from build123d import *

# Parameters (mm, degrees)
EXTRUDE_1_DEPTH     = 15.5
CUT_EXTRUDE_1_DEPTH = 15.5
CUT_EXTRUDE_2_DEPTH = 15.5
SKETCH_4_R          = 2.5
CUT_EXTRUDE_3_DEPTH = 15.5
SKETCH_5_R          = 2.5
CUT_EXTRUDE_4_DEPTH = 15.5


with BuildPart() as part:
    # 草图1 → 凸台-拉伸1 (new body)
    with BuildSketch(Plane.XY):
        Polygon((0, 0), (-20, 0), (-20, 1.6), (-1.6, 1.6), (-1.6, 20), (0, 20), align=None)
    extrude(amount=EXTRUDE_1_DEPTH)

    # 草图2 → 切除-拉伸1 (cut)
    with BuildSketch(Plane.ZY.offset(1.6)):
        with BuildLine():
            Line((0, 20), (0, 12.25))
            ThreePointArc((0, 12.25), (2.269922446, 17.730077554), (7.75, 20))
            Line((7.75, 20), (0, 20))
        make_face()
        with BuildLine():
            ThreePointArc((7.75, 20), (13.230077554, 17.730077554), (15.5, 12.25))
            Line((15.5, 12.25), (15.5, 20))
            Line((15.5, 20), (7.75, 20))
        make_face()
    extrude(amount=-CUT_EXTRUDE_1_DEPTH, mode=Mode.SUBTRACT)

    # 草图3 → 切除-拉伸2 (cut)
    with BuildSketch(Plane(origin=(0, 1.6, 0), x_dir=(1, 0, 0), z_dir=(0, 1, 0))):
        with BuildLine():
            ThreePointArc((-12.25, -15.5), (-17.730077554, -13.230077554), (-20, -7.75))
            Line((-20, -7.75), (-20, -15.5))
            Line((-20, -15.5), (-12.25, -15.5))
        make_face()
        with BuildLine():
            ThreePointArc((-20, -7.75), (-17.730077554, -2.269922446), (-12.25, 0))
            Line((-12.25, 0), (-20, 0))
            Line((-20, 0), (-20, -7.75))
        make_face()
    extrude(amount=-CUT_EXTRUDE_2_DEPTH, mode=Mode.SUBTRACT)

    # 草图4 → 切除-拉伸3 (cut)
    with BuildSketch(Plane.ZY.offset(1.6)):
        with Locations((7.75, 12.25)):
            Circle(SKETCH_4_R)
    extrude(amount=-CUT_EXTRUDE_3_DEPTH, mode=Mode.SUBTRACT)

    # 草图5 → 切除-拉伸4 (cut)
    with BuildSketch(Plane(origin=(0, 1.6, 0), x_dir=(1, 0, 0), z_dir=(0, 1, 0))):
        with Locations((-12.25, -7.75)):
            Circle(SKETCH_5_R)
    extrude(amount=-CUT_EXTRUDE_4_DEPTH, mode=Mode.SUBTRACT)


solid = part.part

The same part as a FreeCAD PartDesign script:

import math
import FreeCAD as App
import Part
import Sketcher
from FreeCAD import Vector


def add_polygon(sketch, points):
    """Adds a closed chain of lines whose ends are joined by coincident constraints."""
    first, n = sketch.GeometryCount, len(points)
    for a, b in zip(points, points[1:] + points[:1]):
        sketch.addGeometry(Part.LineSegment(App.Vector(*a, 0), App.Vector(*b, 0)), False)
    for i in range(n):
        sketch.addConstraint(Sketcher.Constraint("Coincident", first + i, 2, first + (i + 1) % n, 1))

doc = App.newDocument("Part")
body = doc.addObject("PartDesign::Body", "Body")

# Sketch on XY plane
sketch1 = body.newObject("Sketcher::SketchObject", "Sketch")
sketch1.AttachmentSupport = (doc.getObject("XY_Plane"), [""])
sketch1.MapMode = "FlatFace"
add_polygon(sketch1, [(-20, 0), (0, 0), (0, 20), (-1.6, 20), (-1.6, 1.6), (-20, 1.6)])  # lines 0-5
sketch1.addConstraint(Sketcher.Constraint("Horizontal", 0))
sketch1.addConstraint(Sketcher.Constraint("Vertical", 1))
sketch1.addConstraint(Sketcher.Constraint("Horizontal", 2))
sketch1.addConstraint(Sketcher.Constraint("Vertical", 3))
sketch1.addConstraint(Sketcher.Constraint("Horizontal", 4))
sketch1.addConstraint(Sketcher.Constraint("Vertical", 5))
sketch1.addConstraint(Sketcher.Constraint("Coincident", 0, 2, -1, 1))
sketch1.addConstraint(Sketcher.Constraint("Equal", 0, 1))
sketch1.addConstraint(Sketcher.Constraint("Equal", 4, 3))
sketch1.addConstraint(Sketcher.Constraint("DistanceX", 0, 1, 0, 2, 20.0))
sketch1.addConstraint(Sketcher.Constraint("DistanceX", 2, 2, 2, 1, 1.6))
pad1 = body.newObject("PartDesign::Pad", "Pad")
pad1.Profile = sketch1
pad1.Length = 15.5

# Sketch on YZ plane
sketch2 = body.newObject("Sketcher::SketchObject", "Sketch001")
sketch2.AttachmentSupport = (doc.getObject("YZ_Plane"), [""])
sketch2.MapMode = "FlatFace"
sketch2.AttachmentOffset = App.Placement(Vector(0, 0, -1.6), App.Rotation())
sketch2.addGeometry(Part.LineSegment(Vector(20, 0, 0), Vector(12, 0, 0)), False)
sketch2.addGeometry(Part.ArcOfCircle(Part.Circle(Vector(12, 8, 0), Vector(0, 0, 1), 8), math.radians(-90), math.radians(0)), False)
sketch2.addGeometry(Part.LineSegment(Vector(20, 8, 0), Vector(20, 0, 0)), False)
sketch2.addGeometry(Part.ArcOfCircle(Part.Circle(Vector(12, 8, 0), Vector(0, 0, 1), 8), math.radians(0), math.radians(90)), False)
sketch2.addGeometry(Part.LineSegment(Vector(12, 16, 0), Vector(20, 16, 0)), False)
sketch2.addGeometry(Part.LineSegment(Vector(20, 16, 0), Vector(20, 8, 0)), False)
sketch2.addConstraint(Sketcher.Constraint("Tangent", 0, 2, 1, 1))
sketch2.addConstraint(Sketcher.Constraint("Tangent", 1, 2, 2, 1))
sketch2.addConstraint(Sketcher.Constraint("Coincident", 2, 2, 0, 1))
sketch2.addConstraint(Sketcher.Constraint("Tangent", 3, 2, 4, 1))
sketch2.addConstraint(Sketcher.Constraint("Coincident", 4, 2, 5, 1))
sketch2.addConstraint(Sketcher.Constraint("Tangent", 5, 2, 3, 1))
sketch2.addConstraint(Sketcher.Constraint("Horizontal", 0))
sketch2.addConstraint(Sketcher.Constraint("Vertical", 2))
sketch2.addConstraint(Sketcher.Constraint("Horizontal", 4))
sketch2.addConstraint(Sketcher.Constraint("Vertical", 5))
sketch2.addConstraint(Sketcher.Constraint("Coincident", 3, 3, 1, 3))
sketch2.addConstraint(Sketcher.Constraint("Equal", 1, 3))
sketch2.addConstraint(Sketcher.Constraint("PointOnObject", 0, 2, -1))
sketch2.addConstraint(Sketcher.Constraint("Radius", 1, 7.75))
sketch2.addConstraint(Sketcher.Constraint("DistanceX", -1, 1, 1, 2, 20.0))
pocket1 = body.newObject("PartDesign::Pocket", "Pocket")
pocket1.Profile = sketch2
pocket1.Length = 15.5
pocket1.Reversed = True

# Sketch on XZ plane
sketch3 = body.newObject("Sketcher::SketchObject", "Sketch002")
sketch3.AttachmentSupport = (doc.getObject("XZ_Plane"), [""])
sketch3.MapMode = "FlatFace"
sketch3.AttachmentOffset = App.Placement(Vector(0, 0, -1.6), App.Rotation())
sketch3.addGeometry(Part.ArcOfCircle(Part.Circle(Vector(-12, 8, 0), Vector(0, 0, 1), 8), math.radians(90), math.radians(180)), False)
sketch3.addGeometry(Part.LineSegment(Vector(-20, 8, 0), Vector(-20, 16, 0)), False)
sketch3.addGeometry(Part.LineSegment(Vector(-20, 16, 0), Vector(-12, 16, 0)), False)
sketch3.addGeometry(Part.ArcOfCircle(Part.Circle(Vector(-12, 8, 0), Vector(0, 0, 1), 8), math.radians(-180), math.radians(-90)), False)
sketch3.addGeometry(Part.LineSegment(Vector(-12, 0, 0), Vector(-20, 0, 0)), False)
sketch3.addGeometry(Part.LineSegment(Vector(-20, 0, 0), Vector(-20, 8, 0)), False)
sketch3.addConstraint(Sketcher.Constraint("Tangent", 0, 2, 1, 1))
sketch3.addConstraint(Sketcher.Constraint("Coincident", 1, 2, 2, 1))
sketch3.addConstraint(Sketcher.Constraint("Tangent", 2, 2, 0, 1))
sketch3.addConstraint(Sketcher.Constraint("Tangent", 3, 2, 4, 1))
sketch3.addConstraint(Sketcher.Constraint("Coincident", 4, 2, 5, 1))
sketch3.addConstraint(Sketcher.Constraint("Tangent", 5, 2, 3, 1))
sketch3.addConstraint(Sketcher.Constraint("Vertical", 1))
sketch3.addConstraint(Sketcher.Constraint("Horizontal", 2))
sketch3.addConstraint(Sketcher.Constraint("Horizontal", 4))
sketch3.addConstraint(Sketcher.Constraint("Vertical", 5))
sketch3.addConstraint(Sketcher.Constraint("Coincident", 3, 3, 0, 3))
sketch3.addConstraint(Sketcher.Constraint("Equal", 0, 3))
sketch3.addConstraint(Sketcher.Constraint("PointOnObject", 3, 2, -1))
sketch3.addConstraint(Sketcher.Constraint("Radius", 0, 7.75))
sketch3.addConstraint(Sketcher.Constraint("DistanceX", 0, 2, -1, 1, 20.0))
pocket2 = body.newObject("PartDesign::Pocket", "Pocket001")
pocket2.Profile = sketch3
pocket2.Length = 15.5
pocket2.Reversed = True

# Sketch on YZ plane
sketch4 = body.newObject("Sketcher::SketchObject", "Sketch003")
sketch4.AttachmentSupport = (doc.getObject("YZ_Plane"), [""])
sketch4.MapMode = "FlatFace"
sketch4.AttachmentOffset = App.Placement(Vector(0, 0, -1.6), App.Rotation())
sketch4.addGeometry(Part.Circle(Vector(12.2, 7.8, 0), Vector(0, 0, 1), 2.5), False)
sketch4.addConstraint(Sketcher.Constraint("Diameter", 0, 5.0))
sketch4.addConstraint(Sketcher.Constraint("DistanceX", -1, 1, 0, 3, 12.25))
sketch4.addConstraint(Sketcher.Constraint("DistanceY", -1, 1, 0, 3, 7.75))
pocket3 = body.newObject("PartDesign::Pocket", "Pocket002")
pocket3.Profile = sketch4
pocket3.Length = 15.5
pocket3.Reversed = True

# Sketch on XZ plane
sketch5 = body.newObject("Sketcher::SketchObject", "Sketch004")
sketch5.AttachmentSupport = (doc.getObject("XZ_Plane"), [""])
sketch5.MapMode = "FlatFace"
sketch5.AttachmentOffset = App.Placement(Vector(0, 0, -1.6), App.Rotation())
sketch5.addGeometry(Part.Circle(Vector(-12.2, 7.8, 0), Vector(0, 0, 1), 2.5), False)
sketch5.addConstraint(Sketcher.Constraint("Diameter", 0, 5.0))
sketch5.addConstraint(Sketcher.Constraint("DistanceX", 0, 3, -1, 1, 12.25))
sketch5.addConstraint(Sketcher.Constraint("DistanceY", -1, 1, 0, 3, 7.75))
pocket4 = body.newObject("PartDesign::Pocket", "Pocket003")
pocket4.Profile = sketch5
pocket4.Length = 15.5
pocket4.Reversed = True

doc.recompute()
